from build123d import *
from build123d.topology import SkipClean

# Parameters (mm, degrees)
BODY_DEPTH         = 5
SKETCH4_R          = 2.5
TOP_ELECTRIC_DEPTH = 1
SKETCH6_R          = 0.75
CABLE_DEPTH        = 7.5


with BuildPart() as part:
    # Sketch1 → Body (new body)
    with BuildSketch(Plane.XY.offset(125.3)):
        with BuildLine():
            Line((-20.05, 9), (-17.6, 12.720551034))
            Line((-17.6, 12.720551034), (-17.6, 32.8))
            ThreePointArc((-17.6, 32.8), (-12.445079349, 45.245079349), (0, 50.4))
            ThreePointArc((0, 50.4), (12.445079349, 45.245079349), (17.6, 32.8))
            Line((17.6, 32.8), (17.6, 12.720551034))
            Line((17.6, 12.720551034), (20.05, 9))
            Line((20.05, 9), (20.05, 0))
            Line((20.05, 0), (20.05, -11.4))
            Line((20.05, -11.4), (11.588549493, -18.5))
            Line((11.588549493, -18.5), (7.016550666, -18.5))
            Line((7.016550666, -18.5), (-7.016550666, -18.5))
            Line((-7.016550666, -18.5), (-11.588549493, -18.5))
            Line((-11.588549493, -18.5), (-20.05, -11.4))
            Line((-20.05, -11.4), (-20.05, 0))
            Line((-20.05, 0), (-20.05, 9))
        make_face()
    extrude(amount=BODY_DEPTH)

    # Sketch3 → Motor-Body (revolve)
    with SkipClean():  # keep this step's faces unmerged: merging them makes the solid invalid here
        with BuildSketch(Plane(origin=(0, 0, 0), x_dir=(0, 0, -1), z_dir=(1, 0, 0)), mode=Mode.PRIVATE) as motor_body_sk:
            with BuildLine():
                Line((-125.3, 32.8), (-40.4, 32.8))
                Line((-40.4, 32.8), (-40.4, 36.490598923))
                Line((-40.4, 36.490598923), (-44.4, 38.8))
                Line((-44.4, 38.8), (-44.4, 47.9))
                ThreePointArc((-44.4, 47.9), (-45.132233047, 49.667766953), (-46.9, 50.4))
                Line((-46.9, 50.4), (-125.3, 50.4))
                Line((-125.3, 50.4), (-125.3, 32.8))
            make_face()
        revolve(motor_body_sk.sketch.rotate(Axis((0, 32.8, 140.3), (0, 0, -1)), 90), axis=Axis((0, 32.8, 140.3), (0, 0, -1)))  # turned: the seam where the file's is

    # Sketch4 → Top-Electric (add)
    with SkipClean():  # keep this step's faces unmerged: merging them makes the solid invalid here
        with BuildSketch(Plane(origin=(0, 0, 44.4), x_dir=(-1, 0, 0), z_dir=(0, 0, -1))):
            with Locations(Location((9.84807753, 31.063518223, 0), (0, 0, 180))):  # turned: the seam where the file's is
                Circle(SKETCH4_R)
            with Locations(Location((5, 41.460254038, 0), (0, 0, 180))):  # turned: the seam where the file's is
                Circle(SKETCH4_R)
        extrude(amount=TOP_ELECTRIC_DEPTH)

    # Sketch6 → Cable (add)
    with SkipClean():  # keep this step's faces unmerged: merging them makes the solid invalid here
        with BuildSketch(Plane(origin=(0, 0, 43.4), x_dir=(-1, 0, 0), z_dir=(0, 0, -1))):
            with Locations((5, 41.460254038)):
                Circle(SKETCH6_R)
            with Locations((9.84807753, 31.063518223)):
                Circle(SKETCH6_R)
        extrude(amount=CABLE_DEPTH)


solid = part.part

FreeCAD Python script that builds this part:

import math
import FreeCAD as App
import Part
import Sketcher

V = App.Vector
Q = App.Units.Quantity

doc = App.newDocument("Part")
params = doc.addObject("Spreadsheet::Sheet", "Params")
for row, (alias, value) in enumerate([
    ("sketch1_radius", "17.6 mm"),
    ("sketch1_height", "20.4 mm"),
    ("pad1_length", "5 mm"),
    ("sketch2_radius", "2.5 mm"),
    ("sketch2_width", "9.1 mm"),
    ("sketch2_width2", "17.6 mm"),
    ("sketch2_height", "84.9 mm"),
    ("sketch2_height2", "78.4 mm"),
    ("revolution_angle", "360 deg"),
    ("sketch3_diameter", "5 mm"),
    ("pad2_length", "1 mm"),
    ("sketch4_diameter", "1.5 mm"),
    ("pad3_length", "7.5 mm"),
], start=1):
    params.set(f"A{row}", alias)
    params.set(f"B{row}", "=" + value)
    params.setAlias(f"B{row}", alias)

body = doc.addObject("PartDesign::Body", "Body")

# Sketch on XY plane
sketch1 = body.newObject("Sketcher::SketchObject", "Sketch")
sketch1.AttachmentSupport = (doc.getObject("XY_Plane"), [""])
sketch1.MapMode = "FlatFace"
sketch1.AttachmentOffset = App.Placement(V(0, 0, 125.3), App.Rotation())
sketch1.addGeometry([
    Part.LineSegment(V(-17.6, 12.7, 0), V(-20.1, 9, 0)),  # 0
    Part.LineSegment(V(-20.1, 9, 0), V(-20.1, -11.4, 0)),  # 1
    Part.LineSegment(V(-20.1, -11.4, 0), V(-11.6, -18.5, 0)),  # 2
    Part.LineSegment(V(-11.6, -18.5, 0), V(11.6, -18.5, 0)),  # 3
    Part.LineSegment(V(11.6, -18.5, 0), V(20.1, -11.4, 0)),  # 4
    Part.LineSegment(V(20.1, -11.4, 0), V(20.1, 9, 0)),  # 5
    Part.LineSegment(V(20.1, 9, 0), V(17.6, 12.7, 0)),  # 6
    Part.LineSegment(V(17.6, 12.7, 0), V(17.6, 32.8, 0)),  # 7
    Part.ArcOfCircle(Part.Circle(V(0, 32.8, 0), V(0, 0, 1), 17.6), math.radians(0), math.radians(90)),  # 8
    Part.ArcOfCircle(Part.Circle(V(0, 32.8, 0), V(0, 0, 1), 17.6), math.radians(90), math.radians(180)),  # 9
    Part.LineSegment(V(-17.6, 32.8, 0), V(-17.6, 12.7, 0)),  # 10
], False)
sketch1.addConstraint([
    Sketcher.Constraint("Coincident", 0, 2, 1, 1),
    Sketcher.Constraint("Coincident", 1, 2, 2, 1),
    Sketcher.Constraint("Coincident", 2, 2, 3, 1),
    Sketcher.Constraint("Coincident", 3, 2, 4, 1),
    Sketcher.Constraint("Coincident", 4, 2, 5, 1),
    Sketcher.Constraint("Coincident", 5, 2, 6, 1),
    Sketcher.Constraint("Coincident", 6, 2, 7, 1),
    Sketcher.Constraint("Tangent", 7, 2, 8, 1),
    Sketcher.Constraint("Tangent", 8, 2, 9, 1),
    Sketcher.Constraint("Tangent", 9, 2, 10, 1),
    Sketcher.Constraint("Coincident", 10, 2, 0, 1),
    Sketcher.Constraint("Vertical", 1),
    Sketcher.Constraint("Horizontal", 3),
    Sketcher.Constraint("Vertical", 5),
    Sketcher.Constraint("Vertical", 7),
    Sketcher.Constraint("Vertical", 10),
    Sketcher.Constraint("Equal", 8, 9),
    Sketcher.Constraint("Symmetric", 1, 2, 4, 2, -2),
    Sketcher.Constraint("Symmetric", 6, 2, 10, 2, -2),
    Sketcher.Constraint("PointOnObject", 8, 2, -2),
    Sketcher.Constraint("Horizontal", 0, 2, 5, 2),
    Sketcher.Constraint("Equal", 2, 4),
    Sketcher.Constraint("Radius", 8, Q("17.6 mm")),
    Sketcher.Constraint("Angle", 2, Q("-40 deg")),
    Sketcher.Constraint("DistanceY", 1, 2, 1, 1, Q("20.4 mm")),
    Sketcher.Constraint("DistanceY", -1, 1, 0, 2, Q("9 mm")),
    Sketcher.Constraint("DistanceY", -1, 1, 8, 3, Q("32.8 mm")),
    Sketcher.Constraint("DistanceY", 2, 2, -1, 1, Q("18.5 mm")),
    Sketcher.Constraint("DistanceX", 1, 2, 4, 2, Q("40.1 mm")),
    Sketcher.Constraint("DistanceY", 7, 1, 7, 2, Q("20.079449 mm")),
])
sketch1.setExpression("Constraints[22]", "Params.sketch1_radius")
sketch1.setExpression("Constraints[24]", "Params.sketch1_height")
pad1 = body.newObject("PartDesign::Pad", "Pad")
pad1.Profile = sketch1
pad1.setExpression("Length", "Params.pad1_length")

# Sketch on YZ plane
sketch2 = body.newObject("Sketcher::SketchObject", "Sketch001")
sketch2.AttachmentSupport = (doc.getObject("YZ_Plane"), [""])
sketch2.MapMode = "FlatFace"
sketch2.addGeometry([
    Part.LineSegment(V(32.8, 125.3, 0), V(32.8, 40.4, 0)),  # 0
    Part.LineSegment(V(32.8, 40.4, 0), V(36.5, 40.4, 0)),  # 1
    Part.LineSegment(V(36.5, 40.4, 0), V(38.8, 44.4, 0)),  # 2
    Part.LineSegment(V(38.8, 44.4, 0), V(47.9, 44.4, 0)),  # 3
    Part.ArcOfCircle(Part.Circle(V(47.9, 46.9, 0), V(0, 0, 1), 2.5), math.radians(-90), math.radians(0)),  # 4
    Part.LineSegment(V(50.4, 46.9, 0), V(50.4, 125.3, 0)),  # 5
    Part.LineSegment(V(50.4, 125.3, 0), V(32.8, 125.3, 0)),  # 6
], False)
sketch2.addGeometry(Part.LineSegment(V(32.8, 125.3, 0), V(32.8, 40.4, 0)), True)  # axis
sketch2.addConstraint([
    Sketcher.Constraint("Coincident", 0, 2, 1, 1),
    Sketcher.Constraint("Coincident", 1, 2, 2, 1),
    Sketcher.Constraint("Coincident", 2, 2, 3, 1),
    Sketcher.Constraint("Tangent", 3, 2, 4, 1),
    Sketcher.Constraint("Tangent", 4, 2, 5, 1),
    Sketcher.Constraint("Coincident", 5, 2, 6, 1),
    Sketcher.Constraint("Coincident", 6, 2, 0, 1),
    Sketcher.Constraint("Vertical", 0),
    Sketcher.Constraint("Horizontal", 1),
    Sketcher.Constraint("Horizontal", 3),
    Sketcher.Constraint("Vertical", 5),
    Sketcher.Constraint("Horizontal", 6),
    Sketcher.Constraint("Vertical", 7),
    Sketcher.Constraint("Coincident", 7, 1, 6, 2),
    Sketcher.Constraint("Horizontal", 1, 2, 7, 2),
    Sketcher.Constraint("Radius", 4, Q("2.5 mm")),
    Sketcher.Constraint("Angle", 2, Q("60 deg")),
    Sketcher.Constraint("DistanceX", 3, 1, 3, 2, Q("9.1 mm")),
    Sketcher.Constraint("DistanceX", 6, 2, 6, 1, Q("17.6 mm")),
    Sketcher.Constraint("DistanceY", 0, 2, 0, 1, Q("84.9 mm")),
    Sketcher.Constraint("DistanceY", 5, 1, 5, 2, Q("78.4 mm")),
    Sketcher.Constraint("DistanceX", -1, 1, 4, 3, Q("47.9 mm")),
    Sketcher.Constraint("DistanceY", -1, 1, 4, 3, Q("46.9 mm")),
])
sketch2.setExpression("Constraints[15]", "Params.sketch2_radius")
sketch2.setExpression("Constraints[17]", "Params.sketch2_width")
sketch2.setExpression("Constraints[18]", "Params.sketch2_width2")
sketch2.setExpression("Constraints[19]", "Params.sketch2_height")
sketch2.setExpression("Constraints[20]", "Params.sketch2_height2")
revolution = body.newObject("PartDesign::Revolution", "Revolution")
revolution.Profile = sketch2
revolution.ReferenceAxis = (sketch2, ["Axis0"])
revolution.setExpression("Angle", "Params.revolution_angle")

# Sketch on XY plane
sketch3 = body.newObject("Sketcher::SketchObject", "Sketch002")
sketch3.AttachmentSupport = (doc.getObject("XY_Plane"), [""])
sketch3.MapMode = "FlatFace"
sketch3.AttachmentOffset = App.Placement(V(0, 0, 44.4), App.Rotation())
sketch3.addGeometry([
    Part.Circle(V(-9.8, 31.1, 0), V(0, 0, 1), 2.5),
    Part.Circle(V(-5, 41.5, 0), V(0, 0, 1), 2.5),
], False)
sketch3.addConstraint([
    Sketcher.Constraint("Equal", 0, 1),
    Sketcher.Constraint("Diameter", 0, Q("5 mm")),
    Sketcher.Constraint("DistanceX", 1, 3, -1, 1, Q("5 mm")),
    Sketcher.Constraint("DistanceY", -1, 1, 0, 3, Q("31.063518 mm")),
    Sketcher.Constraint("DistanceX", 0, 3, -1, 1, Q("9.848078 mm")),
    Sketcher.Constraint("DistanceY", -1, 1, 1, 3, Q("41.460254 mm")),
])
sketch3.setExpression("Constraints[1]", "Params.sketch3_diameter")
pad2 = body.newObject("PartDesign::Pad", "Pad001")
pad2.Profile = sketch3
pad2.setExpression("Length", "Params.pad2_length")
pad2.Reversed = True

# Sketch on XY plane
sketch4 = body.newObject("Sketcher::SketchObject", "Sketch003")
sketch4.AttachmentSupport = (doc.getObject("XY_Plane"), [""])
sketch4.MapMode = "FlatFace"
sketch4.AttachmentOffset = App.Placement(V(0, 0, 43.4), App.Rotation())
sketch4.addGeometry([
    Part.Circle(V(-5, 41.5, 0), V(0, 0, 1), 0.8),
    Part.Circle(V(-9.8, 31.1, 0), V(0, 0, 1), 0.8),
], False)
sketch4.addConstraint([
    Sketcher.Constraint("Equal", 0, 1),
    Sketcher.Constraint("Diameter", 0, Q("1.5 mm")),
    Sketcher.Constraint("DistanceX", 0, 3, -1, 1, Q("5 mm")),
    Sketcher.Constraint("DistanceY", -1, 1, 1, 3, Q("31.063518 mm")),
    Sketcher.Constraint("DistanceY", -1, 1, 0, 3, Q("41.460254 mm")),
    Sketcher.Constraint("DistanceX", 1, 3, -1, 1, Q("9.848078 mm")),
])
sketch4.setExpression("Constraints[1]", "Params.sketch4_diameter")
pad3 = body.newObject("PartDesign::Pad", "Pad002")
pad3.Profile = sketch4
pad3.setExpression("Length", "Params.pad3_length")
pad3.Reversed = True

doc.recompute()
